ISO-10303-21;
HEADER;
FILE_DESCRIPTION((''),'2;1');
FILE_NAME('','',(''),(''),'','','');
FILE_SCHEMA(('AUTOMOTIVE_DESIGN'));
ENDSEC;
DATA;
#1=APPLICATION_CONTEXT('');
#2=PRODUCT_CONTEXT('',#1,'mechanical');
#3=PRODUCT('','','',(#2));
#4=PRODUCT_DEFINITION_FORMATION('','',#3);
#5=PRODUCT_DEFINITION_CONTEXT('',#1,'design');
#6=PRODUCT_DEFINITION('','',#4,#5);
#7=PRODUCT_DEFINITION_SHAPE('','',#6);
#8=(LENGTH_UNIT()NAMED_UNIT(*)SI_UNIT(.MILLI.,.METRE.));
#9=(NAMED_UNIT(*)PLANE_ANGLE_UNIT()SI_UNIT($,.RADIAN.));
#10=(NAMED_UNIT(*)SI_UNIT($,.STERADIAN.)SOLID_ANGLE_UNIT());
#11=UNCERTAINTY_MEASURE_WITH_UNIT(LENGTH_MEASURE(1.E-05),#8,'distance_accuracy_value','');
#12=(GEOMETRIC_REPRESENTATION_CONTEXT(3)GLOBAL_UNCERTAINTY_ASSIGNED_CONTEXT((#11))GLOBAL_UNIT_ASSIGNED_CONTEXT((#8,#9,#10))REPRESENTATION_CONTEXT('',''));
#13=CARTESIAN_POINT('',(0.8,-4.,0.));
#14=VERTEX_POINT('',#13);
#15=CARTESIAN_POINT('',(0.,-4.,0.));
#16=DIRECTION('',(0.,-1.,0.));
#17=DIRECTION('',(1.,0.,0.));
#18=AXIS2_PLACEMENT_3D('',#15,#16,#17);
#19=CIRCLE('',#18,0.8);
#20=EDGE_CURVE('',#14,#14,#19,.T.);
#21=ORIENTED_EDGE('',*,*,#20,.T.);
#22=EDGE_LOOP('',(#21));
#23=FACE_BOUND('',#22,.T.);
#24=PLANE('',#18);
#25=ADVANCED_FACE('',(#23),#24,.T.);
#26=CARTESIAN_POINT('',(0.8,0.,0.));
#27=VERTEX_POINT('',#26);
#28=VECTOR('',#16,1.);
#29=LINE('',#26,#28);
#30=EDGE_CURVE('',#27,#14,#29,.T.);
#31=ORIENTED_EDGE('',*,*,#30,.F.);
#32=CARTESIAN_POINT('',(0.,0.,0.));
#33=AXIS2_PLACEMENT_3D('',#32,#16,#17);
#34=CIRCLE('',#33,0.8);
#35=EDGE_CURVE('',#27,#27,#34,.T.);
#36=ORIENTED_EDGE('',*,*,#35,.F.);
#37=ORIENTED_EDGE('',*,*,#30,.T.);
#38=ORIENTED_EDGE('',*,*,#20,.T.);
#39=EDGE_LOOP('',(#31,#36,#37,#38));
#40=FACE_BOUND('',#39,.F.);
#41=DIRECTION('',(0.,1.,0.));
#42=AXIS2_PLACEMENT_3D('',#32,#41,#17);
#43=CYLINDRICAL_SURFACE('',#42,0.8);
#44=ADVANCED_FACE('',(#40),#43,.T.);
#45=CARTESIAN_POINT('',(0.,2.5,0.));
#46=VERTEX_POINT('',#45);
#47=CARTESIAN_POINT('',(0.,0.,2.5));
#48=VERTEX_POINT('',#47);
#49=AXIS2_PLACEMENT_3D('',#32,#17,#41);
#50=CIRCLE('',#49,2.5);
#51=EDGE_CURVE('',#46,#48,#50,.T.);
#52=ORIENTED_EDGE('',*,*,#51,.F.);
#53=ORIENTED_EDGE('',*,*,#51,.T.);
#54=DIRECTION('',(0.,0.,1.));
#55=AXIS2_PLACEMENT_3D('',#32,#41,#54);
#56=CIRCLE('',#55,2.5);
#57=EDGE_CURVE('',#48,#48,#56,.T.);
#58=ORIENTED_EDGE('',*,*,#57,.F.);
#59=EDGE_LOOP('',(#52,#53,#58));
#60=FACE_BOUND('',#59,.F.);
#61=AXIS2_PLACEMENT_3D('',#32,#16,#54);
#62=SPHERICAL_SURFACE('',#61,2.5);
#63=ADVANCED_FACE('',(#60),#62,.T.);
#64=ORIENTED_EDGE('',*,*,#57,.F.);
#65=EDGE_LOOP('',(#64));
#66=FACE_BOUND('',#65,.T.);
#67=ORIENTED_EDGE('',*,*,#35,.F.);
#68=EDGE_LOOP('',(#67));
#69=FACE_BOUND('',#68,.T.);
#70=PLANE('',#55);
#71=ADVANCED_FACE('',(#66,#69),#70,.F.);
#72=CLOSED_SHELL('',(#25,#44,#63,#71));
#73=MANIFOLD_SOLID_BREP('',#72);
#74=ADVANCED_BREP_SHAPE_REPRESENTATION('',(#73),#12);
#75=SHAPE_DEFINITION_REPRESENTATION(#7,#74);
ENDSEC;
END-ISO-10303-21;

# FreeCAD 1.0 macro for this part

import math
import FreeCAD as App
import Part
import Sketcher
from FreeCAD import Vector
Q = App.Units.Quantity

doc = App.newDocument("Part")
body = doc.addObject("PartDesign::Body", "Body")

# Sketch on YZ plane
sketch1 = doc.addObject("Sketcher::SketchObject", "Sketch")
body.addObject(sketch1)
sketch1.AttachmentSupport = (doc.YZ_Plane, [""])
sketch1.MapMode = "FlatFace"
sketch1.addGeometry(Part.LineSegment(Vector(0, 0, 0), Vector(2.5, 0, 0)), False)
sketch1.addGeometry(Part.ArcOfCircle(Part.Circle(Vector(0, 0, 0), Vector(0, 0, 1), 2.5), math.radians(0), math.radians(90)), False)
sketch1.addGeometry(Part.LineSegment(Vector(0, 2.5, 0), Vector(0, 0, 0)), False)
sketch1.addConstraint(Sketcher.Constraint("Coincident", 0, 2, 1, 1))
sketch1.addConstraint(Sketcher.Constraint("Coincident", 1, 2, 2, 1))
sketch1.addConstraint(Sketcher.Constraint("Coincident", 2, 2, 0, 1))
sketch1.addConstraint(Sketcher.Constraint("Horizontal", 0))
sketch1.addConstraint(Sketcher.Constraint("Vertical", 2))
sketch1.addConstraint(Sketcher.Constraint("Coincident", 1, 3, -1, 1))
sketch1.addConstraint(Sketcher.Constraint("Coincident", 2, 2, -1, 1))
sketch1.addConstraint(Sketcher.Constraint("Radius", 1, Q("2.5 mm")))
revolution = doc.addObject("PartDesign::Revolution", "Revolution")
body.addObject(revolution)
revolution.Profile = sketch1
revolution.ReferenceAxis = (sketch1, ["H_Axis"])
revolution.Angle = 360

# Sketch on XZ plane
sketch2 = doc.addObject("Sketcher::SketchObject", "Sketch001")
body.addObject(sketch2)
sketch2.AttachmentSupport = (doc.XZ_Plane, [""])
sketch2.MapMode = "FlatFace"
sketch2.addGeometry(Part.Circle(Vector(0, 0, 0), Vector(0, 0, 1), 0.8), False)
sketch2.addConstraint(Sketcher.Constraint("Coincident", 0, 3, -1, 1))
sketch2.addConstraint(Sketcher.Constraint("Diameter", 0, Q("1.6 mm")))
pad1 = doc.addObject("PartDesign::Pad", "Pad")
body.addObject(pad1)
pad1.Profile = sketch2
pad1.Length = 4

doc.recompute()
